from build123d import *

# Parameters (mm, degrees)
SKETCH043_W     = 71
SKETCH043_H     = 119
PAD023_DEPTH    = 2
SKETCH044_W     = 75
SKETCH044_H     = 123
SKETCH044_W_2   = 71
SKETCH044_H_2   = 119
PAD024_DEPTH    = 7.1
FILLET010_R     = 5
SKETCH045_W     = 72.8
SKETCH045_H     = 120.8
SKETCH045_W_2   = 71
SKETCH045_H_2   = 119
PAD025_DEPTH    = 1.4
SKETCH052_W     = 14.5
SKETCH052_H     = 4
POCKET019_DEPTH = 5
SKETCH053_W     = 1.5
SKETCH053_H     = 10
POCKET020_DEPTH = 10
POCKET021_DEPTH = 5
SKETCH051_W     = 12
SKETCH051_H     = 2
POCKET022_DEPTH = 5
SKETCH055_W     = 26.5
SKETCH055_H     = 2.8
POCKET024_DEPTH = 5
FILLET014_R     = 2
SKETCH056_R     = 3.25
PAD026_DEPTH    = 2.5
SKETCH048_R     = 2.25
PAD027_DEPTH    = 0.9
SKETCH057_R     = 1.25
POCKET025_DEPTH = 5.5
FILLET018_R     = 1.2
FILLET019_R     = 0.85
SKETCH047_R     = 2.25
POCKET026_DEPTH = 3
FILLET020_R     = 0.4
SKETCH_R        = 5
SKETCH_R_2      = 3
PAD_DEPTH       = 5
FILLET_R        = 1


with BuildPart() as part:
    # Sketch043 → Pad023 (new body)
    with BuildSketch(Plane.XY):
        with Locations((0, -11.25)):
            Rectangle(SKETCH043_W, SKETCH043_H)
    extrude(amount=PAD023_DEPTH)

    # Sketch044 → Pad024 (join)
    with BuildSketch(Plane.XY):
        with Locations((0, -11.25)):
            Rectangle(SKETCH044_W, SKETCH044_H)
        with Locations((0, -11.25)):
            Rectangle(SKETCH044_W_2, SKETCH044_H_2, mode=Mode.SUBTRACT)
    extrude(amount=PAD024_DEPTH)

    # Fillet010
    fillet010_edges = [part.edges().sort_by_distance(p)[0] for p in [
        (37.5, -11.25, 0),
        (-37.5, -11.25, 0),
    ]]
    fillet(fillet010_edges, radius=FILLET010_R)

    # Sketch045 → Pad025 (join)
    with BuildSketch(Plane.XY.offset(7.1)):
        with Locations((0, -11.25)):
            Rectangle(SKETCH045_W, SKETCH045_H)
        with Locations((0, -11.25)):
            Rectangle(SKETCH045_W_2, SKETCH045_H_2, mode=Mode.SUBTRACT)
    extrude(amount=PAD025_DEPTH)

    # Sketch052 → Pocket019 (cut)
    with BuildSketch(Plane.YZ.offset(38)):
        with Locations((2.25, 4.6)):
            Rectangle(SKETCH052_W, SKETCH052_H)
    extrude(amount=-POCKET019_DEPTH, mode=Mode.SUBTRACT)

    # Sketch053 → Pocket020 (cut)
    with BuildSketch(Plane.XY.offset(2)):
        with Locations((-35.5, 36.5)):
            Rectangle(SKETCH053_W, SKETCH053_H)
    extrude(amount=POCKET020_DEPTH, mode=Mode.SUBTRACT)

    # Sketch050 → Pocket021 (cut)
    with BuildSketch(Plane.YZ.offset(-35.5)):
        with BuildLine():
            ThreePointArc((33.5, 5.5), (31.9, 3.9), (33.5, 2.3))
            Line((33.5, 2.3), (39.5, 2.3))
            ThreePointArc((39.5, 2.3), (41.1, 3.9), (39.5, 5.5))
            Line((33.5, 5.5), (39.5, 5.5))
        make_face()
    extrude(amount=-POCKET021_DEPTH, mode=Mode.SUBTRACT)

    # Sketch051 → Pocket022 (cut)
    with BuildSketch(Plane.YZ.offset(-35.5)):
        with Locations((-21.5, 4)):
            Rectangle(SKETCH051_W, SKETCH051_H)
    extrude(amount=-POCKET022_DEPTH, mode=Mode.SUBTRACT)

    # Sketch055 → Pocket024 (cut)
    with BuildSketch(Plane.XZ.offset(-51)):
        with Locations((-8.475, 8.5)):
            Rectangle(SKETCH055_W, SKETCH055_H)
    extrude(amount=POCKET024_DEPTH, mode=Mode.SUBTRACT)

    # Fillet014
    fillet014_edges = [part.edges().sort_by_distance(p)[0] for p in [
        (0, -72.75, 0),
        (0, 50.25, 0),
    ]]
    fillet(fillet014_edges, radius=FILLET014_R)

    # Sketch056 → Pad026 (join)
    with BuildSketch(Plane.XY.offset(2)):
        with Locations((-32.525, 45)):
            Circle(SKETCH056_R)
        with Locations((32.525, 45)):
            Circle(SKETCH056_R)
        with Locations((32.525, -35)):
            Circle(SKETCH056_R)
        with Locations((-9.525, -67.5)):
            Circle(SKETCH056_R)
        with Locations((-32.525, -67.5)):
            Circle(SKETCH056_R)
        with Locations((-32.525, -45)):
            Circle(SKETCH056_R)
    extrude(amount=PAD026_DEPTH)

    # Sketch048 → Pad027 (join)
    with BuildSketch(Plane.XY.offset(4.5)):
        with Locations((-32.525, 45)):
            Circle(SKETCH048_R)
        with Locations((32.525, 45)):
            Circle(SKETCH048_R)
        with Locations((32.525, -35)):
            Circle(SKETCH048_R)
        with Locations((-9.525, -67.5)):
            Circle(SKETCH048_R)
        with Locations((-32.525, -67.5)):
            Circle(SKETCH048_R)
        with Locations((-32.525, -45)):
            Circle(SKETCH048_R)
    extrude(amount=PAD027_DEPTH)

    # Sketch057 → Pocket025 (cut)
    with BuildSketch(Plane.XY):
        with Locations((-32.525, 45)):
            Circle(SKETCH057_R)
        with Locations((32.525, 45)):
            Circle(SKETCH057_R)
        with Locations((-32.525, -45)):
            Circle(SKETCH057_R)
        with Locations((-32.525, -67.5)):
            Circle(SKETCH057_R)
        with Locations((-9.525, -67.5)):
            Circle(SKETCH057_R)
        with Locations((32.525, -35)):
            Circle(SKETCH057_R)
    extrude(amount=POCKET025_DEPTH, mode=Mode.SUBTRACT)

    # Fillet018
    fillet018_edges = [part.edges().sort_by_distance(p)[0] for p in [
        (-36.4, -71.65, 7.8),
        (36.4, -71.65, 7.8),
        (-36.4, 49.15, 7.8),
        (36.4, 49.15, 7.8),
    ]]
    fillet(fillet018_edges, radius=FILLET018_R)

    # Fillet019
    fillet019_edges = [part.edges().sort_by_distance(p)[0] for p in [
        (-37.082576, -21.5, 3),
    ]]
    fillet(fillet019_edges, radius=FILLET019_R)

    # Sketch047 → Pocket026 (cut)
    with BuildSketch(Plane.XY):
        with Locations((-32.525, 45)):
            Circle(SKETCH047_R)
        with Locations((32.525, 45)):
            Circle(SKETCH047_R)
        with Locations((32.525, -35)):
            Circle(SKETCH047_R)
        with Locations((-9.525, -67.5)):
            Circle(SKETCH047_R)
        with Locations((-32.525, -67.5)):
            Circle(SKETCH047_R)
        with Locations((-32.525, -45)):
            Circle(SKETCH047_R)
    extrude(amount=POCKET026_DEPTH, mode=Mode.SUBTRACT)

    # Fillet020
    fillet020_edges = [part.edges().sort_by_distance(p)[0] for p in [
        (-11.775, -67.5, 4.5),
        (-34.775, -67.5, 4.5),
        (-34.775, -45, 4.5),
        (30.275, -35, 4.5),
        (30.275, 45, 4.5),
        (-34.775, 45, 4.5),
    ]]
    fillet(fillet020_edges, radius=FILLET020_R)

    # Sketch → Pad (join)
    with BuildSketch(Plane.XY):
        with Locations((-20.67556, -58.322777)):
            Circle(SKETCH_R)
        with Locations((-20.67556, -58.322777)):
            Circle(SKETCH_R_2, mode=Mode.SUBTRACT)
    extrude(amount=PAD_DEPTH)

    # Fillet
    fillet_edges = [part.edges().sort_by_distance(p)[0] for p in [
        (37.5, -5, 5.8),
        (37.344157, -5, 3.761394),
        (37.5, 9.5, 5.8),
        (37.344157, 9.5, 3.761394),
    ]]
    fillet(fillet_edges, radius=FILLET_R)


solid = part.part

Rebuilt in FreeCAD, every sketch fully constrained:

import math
import FreeCAD as App
import Part
import Sketcher
from FreeCAD import Vector


def edges_at(feature, points):
    """Names of the edges that pass closest to the given points."""
    edges = feature.Shape.Edges
    near = lambda p: min(range(len(edges)), key=lambda i: edges[i].distToShape(Part.Vertex(*p))[0])
    return sorted({f"Edge{near(p) + 1}" for p in points})

doc = App.newDocument("Part")
body = doc.addObject("PartDesign::Body", "Body")

sketch1 = doc.addObject("Sketcher::SketchObject", "Sketch")
body.addObject(sketch1)
sketch1.AttachmentSupport = (doc.XY_Plane, [""])
sketch1.MapMode = "FlatFace"
sketch1.addGeometry(Part.LineSegment(Vector(-36, 48, 0), Vector(-36, -71, 0)), False)
sketch1.addGeometry(Part.LineSegment(Vector(-36, -71, 0), Vector(36, -71, 0)), False)
sketch1.addGeometry(Part.LineSegment(Vector(36, -71, 0), Vector(36, 48, 0)), False)
sketch1.addGeometry(Part.LineSegment(Vector(36, 48, 0), Vector(-36, 48, 0)), False)
sketch1.addConstraint(Sketcher.Constraint("Coincident", 0, 2, 1, 1))
sketch1.addConstraint(Sketcher.Constraint("Coincident", 1, 2, 2, 1))
sketch1.addConstraint(Sketcher.Constraint("Coincident", 2, 2, 3, 1))
sketch1.addConstraint(Sketcher.Constraint("Coincident", 3, 2, 0, 1))
sketch1.addConstraint(Sketcher.Constraint("Vertical", 0))
sketch1.addConstraint(Sketcher.Constraint("Horizontal", 1))
sketch1.addConstraint(Sketcher.Constraint("Vertical", 2))
sketch1.addConstraint(Sketcher.Constraint("Horizontal", 3))
sketch1.addConstraint(Sketcher.Constraint("DistanceX", 1, 1, 1, 2, 71.0))
sketch1.addConstraint(Sketcher.Constraint("DistanceY", 0, 2, 0, 1, 119.0))
sketch1.addConstraint(Sketcher.Constraint("DistanceX", 0, 2, -1, 1, 35.5))
sketch1.addConstraint(Sketcher.Constraint("DistanceY", 0, 2, -1, 1, 70.75))
pad1 = doc.addObject("PartDesign::Pad", "Pad")
body.addObject(pad1)
pad1.Profile = sketch1
pad1.Length = 2

sketch2 = doc.addObject("Sketcher::SketchObject", "Sketch001")
body.addObject(sketch2)
sketch2.AttachmentSupport = (doc.XY_Plane, [""])
sketch2.MapMode = "FlatFace"
sketch2.addGeometry(Part.LineSegment(Vector(-38, 50, 0), Vector(-38, -73, 0)), False)
sketch2.addGeometry(Part.LineSegment(Vector(-38, -73, 0), Vector(38, -73, 0)), False)
sketch2.addGeometry(Part.LineSegment(Vector(38, -73, 0), Vector(38, 50, 0)), False)
sketch2.addGeometry(Part.LineSegment(Vector(38, 50, 0), Vector(-38, 50, 0)), False)
sketch2.addGeometry(Part.LineSegment(Vector(36, -71, 0), Vector(-36, -71, 0)), False)
sketch2.addGeometry(Part.LineSegment(Vector(-36, -71, 0), Vector(-36, 48, 0)), False)
sketch2.addGeometry(Part.LineSegment(Vector(-36, 48, 0), Vector(36, 48, 0)), False)
sketch2.addGeometry(Part.LineSegment(Vector(36, 48, 0), Vector(36, -71, 0)), False)
sketch2.addConstraint(Sketcher.Constraint("Coincident", 0, 2, 1, 1))
sketch2.addConstraint(Sketcher.Constraint("Coincident", 1, 2, 2, 1))
sketch2.addConstraint(Sketcher.Constraint("Coincident", 2, 2, 3, 1))
sketch2.addConstraint(Sketcher.Constraint("Coincident", 3, 2, 0, 1))
sketch2.addConstraint(Sketcher.Constraint("Coincident", 4, 2, 5, 1))
sketch2.addConstraint(Sketcher.Constraint("Coincident", 5, 2, 6, 1))
sketch2.addConstraint(Sketcher.Constraint("Coincident", 6, 2, 7, 1))
sketch2.addConstraint(Sketcher.Constraint("Coincident", 7, 2, 4, 1))
sketch2.addConstraint(Sketcher.Constraint("Vertical", 0))
sketch2.addConstraint(Sketcher.Constraint("Horizontal", 1))
sketch2.addConstraint(Sketcher.Constraint("Vertical", 2))
sketch2.addConstraint(Sketcher.Constraint("Horizontal", 3))
sketch2.addConstraint(Sketcher.Constraint("Horizontal", 4))
sketch2.addConstraint(Sketcher.Constraint("Vertical", 5))
sketch2.addConstraint(Sketcher.Constraint("Horizontal", 6))
sketch2.addConstraint(Sketcher.Constraint("Vertical", 7))
sketch2.addConstraint(Sketcher.Constraint("DistanceX", 1, 1, 1, 2, 75.0))
sketch2.addConstraint(Sketcher.Constraint("DistanceX", 4, 2, 4, 1, 71.0))
sketch2.addConstraint(Sketcher.Constraint("DistanceY", 0, 2, 0, 1, 123.0))
sketch2.addConstraint(Sketcher.Constraint("DistanceY", 5, 1, 5, 2, 119.0))
sketch2.addConstraint(Sketcher.Constraint("DistanceX", 0, 2, 4, 2, 2.0))
sketch2.addConstraint(Sketcher.Constraint("DistanceY", 0, 2, 4, 2, 2.0))
sketch2.addConstraint(Sketcher.Constraint("DistanceX", 0, 2, -1, 1, 37.5))
sketch2.addConstraint(Sketcher.Constraint("DistanceY", 0, 2, -1, 1, 72.75))
pad2 = doc.addObject("PartDesign::Pad", "Pad001")
body.addObject(pad2)
pad2.Profile = sketch2
pad2.Length = 7.1
doc.recompute()

fillet = doc.addObject("PartDesign::Fillet", "Fillet")
body.addObject(fillet)
fillet.Base = (pad2, edges_at(pad2, [(37.5, -11.25, 0), (-37.5, -11.25, 0)]))
fillet.Radius = 5

sketch3 = doc.addObject("Sketcher::SketchObject", "Sketch002")
body.addObject(sketch3)
sketch3.AttachmentSupport = (doc.XY_Plane, [""])
sketch3.MapMode = "FlatFace"
sketch3.AttachmentOffset = App.Placement(Vector(0, 0, 7.1), App.Rotation())
sketch3.addGeometry(Part.LineSegment(Vector(-36, 49, 0), Vector(-36, -72, 0)), False)
sketch3.addGeometry(Part.LineSegment(Vector(-36, -72, 0), Vector(36, -72, 0)), False)
sketch3.addGeometry(Part.LineSegment(Vector(36, -72, 0), Vector(36, 49, 0)), False)
sketch3.addGeometry(Part.LineSegment(Vector(36, 49, 0), Vector(-36, 49, 0)), False)
sketch3.addGeometry(Part.LineSegment(Vector(36, -71, 0), Vector(-36, -71, 0)), False)
sketch3.addGeometry(Part.LineSegment(Vector(-36, -71, 0), Vector(-36, 48, 0)), False)
sketch3.addGeometry(Part.LineSegment(Vector(-36, 48, 0), Vector(36, 48, 0)), False)
sketch3.addGeometry(Part.LineSegment(Vector(36, 48, 0), Vector(36, -71, 0)), False)
sketch3.addConstraint(Sketcher.Constraint("Coincident", 0, 2, 1, 1))
sketch3.addConstraint(Sketcher.Constraint("Coincident", 1, 2, 2, 1))
sketch3.addConstraint(Sketcher.Constraint("Coincident", 2, 2, 3, 1))
sketch3.addConstraint(Sketcher.Constraint("Coincident", 3, 2, 0, 1))
sketch3.addConstraint(Sketcher.Constraint("Coincident", 4, 2, 5, 1))
sketch3.addConstraint(Sketcher.Constraint("Coincident", 5, 2, 6, 1))
sketch3.addConstraint(Sketcher.Constraint("Coincident", 6, 2, 7, 1))
sketch3.addConstraint(Sketcher.Constraint("Coincident", 7, 2, 4, 1))
sketch3.addConstraint(Sketcher.Constraint("Vertical", 0))
sketch3.addConstraint(Sketcher.Constraint("Horizontal", 1))
sketch3.addConstraint(Sketcher.Constraint("Vertical", 2))
sketch3.addConstraint(Sketcher.Constraint("Horizontal", 3))
sketch3.addConstraint(Sketcher.Constraint("Horizontal", 4))
sketch3.addConstraint(Sketcher.Constraint("Vertical", 5))
sketch3.addConstraint(Sketcher.Constraint("Horizontal", 6))
sketch3.addConstraint(Sketcher.Constraint("Vertical", 7))
sketch3.addConstraint(Sketcher.Constraint("DistanceX", 4, 2, 4, 1, 71.0))
sketch3.addConstraint(Sketcher.Constraint("DistanceY", 5, 1, 5, 2, 119.0))
sketch3.addConstraint(Sketcher.Constraint("DistanceX", 1, 1, 1, 2, 72.8))
sketch3.addConstraint(Sketcher.Constraint("DistanceY", 0, 2, 0, 1, 120.8))
sketch3.addConstraint(Sketcher.Constraint("DistanceX", 0, 2, -1, 1, 36.4))
sketch3.addConstraint(Sketcher.Constraint("DistanceX", 4, 2, -1, 1, 35.5))
sketch3.addConstraint(Sketcher.Constraint("DistanceY", 0, 2, 4, 2, 0.9))
sketch3.addConstraint(Sketcher.Constraint("DistanceY", 0, 2, -1, 1, 71.65))
pad3 = doc.addObject("PartDesign::Pad", "Pad002")
body.addObject(pad3)
pad3.Profile = sketch3
pad3.Length = 1.4

sketch4 = doc.addObject("Sketcher::SketchObject", "Sketch003")
body.addObject(sketch4)
sketch4.AttachmentSupport = (doc.YZ_Plane, [""])
sketch4.MapMode = "FlatFace"
sketch4.AttachmentOffset = App.Placement(Vector(0, 0, 38), App.Rotation())
sketch4.addGeometry(Part.LineSegment(Vector(-5, 6.6, 0), Vector(-5, 2.6, 0)), False)
sketch4.addGeometry(Part.LineSegment(Vector(-5, 2.6, 0), Vector(9.5, 2.6, 0)), False)
sketch4.addGeometry(Part.LineSegment(Vector(9.5, 2.6, 0), Vector(9.5, 6.6, 0)), False)
sketch4.addGeometry(Part.LineSegment(Vector(9.5, 6.6, 0), Vector(-5, 6.6, 0)), False)
sketch4.addConstraint(Sketcher.Constraint("Coincident", 0, 2, 1, 1))
sketch4.addConstraint(Sketcher.Constraint("Coincident", 1, 2, 2, 1))
sketch4.addConstraint(Sketcher.Constraint("Coincident", 2, 2, 3, 1))
sketch4.addConstraint(Sketcher.Constraint("Coincident", 3, 2, 0, 1))
sketch4.addConstraint(Sketcher.Constraint("Vertical", 0))
sketch4.addConstraint(Sketcher.Constraint("Horizontal", 1))
sketch4.addConstraint(Sketcher.Constraint("Vertical", 2))
sketch4.addConstraint(Sketcher.Constraint("Horizontal", 3))
sketch4.addConstraint(Sketcher.Constraint("DistanceY", 0, 2, 0, 1, 4.0))
sketch4.addConstraint(Sketcher.Constraint("DistanceX", 1, 1, 1, 2, 14.5))
sketch4.addConstraint(Sketcher.Constraint("DistanceX", 0, 2, -1, 1, 5.0))
sketch4.addConstraint(Sketcher.Constraint("DistanceY", -1, 1, 0, 2, 2.6))
pocket1 = doc.addObject("PartDesign::Pocket", "Pocket")
body.addObject(pocket1)
pocket1.Profile = sketch4
pocket1.Length = 5

sketch5 = doc.addObject("Sketcher::SketchObject", "Sketch004")
body.addObject(sketch5)
sketch5.AttachmentSupport = (doc.XY_Plane, [""])
sketch5.MapMode = "FlatFace"
sketch5.AttachmentOffset = App.Placement(Vector(0, 0, 2), App.Rotation())
sketch5.addGeometry(Part.LineSegment(Vector(-36.2, 41.5, 0), Vector(-36.2, 31.5, 0)), False)
sketch5.addGeometry(Part.LineSegment(Vector(-36.2, 31.5, 0), Vector(-34.8, 31.5, 0)), False)
sketch5.addGeometry(Part.LineSegment(Vector(-34.8, 31.5, 0), Vector(-34.8, 41.5, 0)), False)
sketch5.addGeometry(Part.LineSegment(Vector(-34.8, 41.5, 0), Vector(-36.2, 41.5, 0)), False)
sketch5.addConstraint(Sketcher.Constraint("Coincident", 0, 2, 1, 1))
sketch5.addConstraint(Sketcher.Constraint("Coincident", 1, 2, 2, 1))
sketch5.addConstraint(Sketcher.Constraint("Coincident", 2, 2, 3, 1))
sketch5.addConstraint(Sketcher.Constraint("Coincident", 3, 2, 0, 1))
sketch5.addConstraint(Sketcher.Constraint("Vertical", 0))
sketch5.addConstraint(Sketcher.Constraint("Horizontal", 1))
sketch5.addConstraint(Sketcher.Constraint("Vertical", 2))
sketch5.addConstraint(Sketcher.Constraint("Horizontal", 3))
sketch5.addConstraint(Sketcher.Constraint("DistanceY", 0, 2, 0, 1, 10.0))
sketch5.addConstraint(Sketcher.Constraint("DistanceX", 1, 1, 1, 2, 1.5))
sketch5.addConstraint(Sketcher.Constraint("DistanceY", -1, 1, 0, 2, 31.5))
sketch5.addConstraint(Sketcher.Constraint("DistanceX", 0, 2, -1, 1, 36.25))
pocket2 = doc.addObject("PartDesign::Pocket", "Pocket001")
body.addObject(pocket2)
pocket2.Profile = sketch5
pocket2.Length = 10
pocket2.Reversed = True

sketch6 = doc.addObject("Sketcher::SketchObject", "Sketch005")
body.addObject(sketch6)
sketch6.AttachmentSupport = (doc.YZ_Plane, [""])
sketch6.MapMode = "FlatFace"
sketch6.AttachmentOffset = App.Placement(Vector(0, 0, -35.5), App.Rotation())
sketch6.addGeometry(Part.ArcOfCircle(Part.Circle(Vector(33.5, 3.9, 0), Vector(0, 0, 1), 1.6), math.radians(90), math.radians(270)), False)
sketch6.addGeometry(Part.LineSegment(Vector(33.5, 2.3, 0), Vector(39.5, 2.3, 0)), False)
sketch6.addGeometry(Part.ArcOfCircle(Part.Circle(Vector(39.5, 3.9, 0), Vector(0, 0, 1), 1.6), math.radians(-90), math.radians(90)), False)
sketch6.addGeometry(Part.LineSegment(Vector(39.5, 5.5, 0), Vector(33.5, 5.5, 0)), False)
sketch6.addConstraint(Sketcher.Constraint("Tangent", 0, 2, 1, 1))
sketch6.addConstraint(Sketcher.Constraint("Tangent", 1, 2, 2, 1))
sketch6.addConstraint(Sketcher.Constraint("Tangent", 2, 2, 3, 1))
sketch6.addConstraint(Sketcher.Constraint("Tangent", 3, 2, 0, 1))
sketch6.addConstraint(Sketcher.Constraint("Horizontal", 1))
sketch6.addConstraint(Sketcher.Constraint("Horizontal", 3))
sketch6.addConstraint(Sketcher.Constraint("Radius", 0, 1.6))
sketch6.addConstraint(Sketcher.Constraint("DistanceX", 1, 1, 1, 2, 6.0))
sketch6.addConstraint(Sketcher.Constraint("DistanceX", -1, 1, 0, 3, 33.5))
sketch6.addConstraint(Sketcher.Constraint("DistanceY", -1, 1, 0, 3, 3.9))
pocket3 = doc.addObject("PartDesign::Pocket", "Pocket002")
body.addObject(pocket3)
pocket3.Profile = sketch6
pocket3.Length = 5

sketch7 = doc.addObject("Sketcher::SketchObject", "Sketch006")
body.addObject(sketch7)
sketch7.AttachmentSupport = (doc.YZ_Plane, [""])
sketch7.MapMode = "FlatFace"
sketch7.AttachmentOffset = App.Placement(Vector(0, 0, -35.5), App.Rotation())
sketch7.addGeometry(Part.LineSegment(Vector(-27.5, 5, 0), Vector(-27.5, 3, 0)), False)
sketch7.addGeometry(Part.LineSegment(Vector(-27.5, 3, 0), Vector(-15.5, 3, 0)), False)
sketch7.addGeometry(Part.LineSegment(Vector(-15.5, 3, 0), Vector(-15.5, 5, 0)), False)
sketch7.addGeometry(Part.LineSegment(Vector(-15.5, 5, 0), Vector(-27.5, 5, 0)), False)
sketch7.addConstraint(Sketcher.Constraint("Coincident", 0, 2, 1, 1))
sketch7.addConstraint(Sketcher.Constraint("Coincident", 1, 2, 2, 1))
sketch7.addConstraint(Sketcher.Constraint("Coincident", 2, 2, 3, 1))
sketch7.addConstraint(Sketcher.Constraint("Coincident", 3, 2, 0, 1))
sketch7.addConstraint(Sketcher.Constraint("Vertical", 0))
sketch7.addConstraint(Sketcher.Constraint("Horizontal", 1))
sketch7.addConstraint(Sketcher.Constraint("Vertical", 2))
sketch7.addConstraint(Sketcher.Constraint("Horizontal", 3))
sketch7.addConstraint(Sketcher.Constraint("DistanceX", 1, 1, 1, 2, 12.0))
sketch7.addConstraint(Sketcher.Constraint("DistanceY", 0, 2, 0, 1, 2.0))
sketch7.addConstraint(Sketcher.Constraint("DistanceY", -1, 1, 0, 2, 3.0))
sketch7.addConstraint(Sketcher.Constraint("DistanceX", 0, 2, -1, 1, 27.5))
pocket4 = doc.addObject("PartDesign::Pocket", "Pocket003")
body.addObject(pocket4)
pocket4.Profile = sketch7
pocket4.Length = 5

sketch8 = doc.addObject("Sketcher::SketchObject", "Sketch007")
body.addObject(sketch8)
sketch8.AttachmentSupport = (doc.XZ_Plane, [""])
sketch8.MapMode = "FlatFace"
sketch8.AttachmentOffset = App.Placement(Vector(0, 0, -51), App.Rotation())
sketch8.addGeometry(Part.LineSegment(Vector(-21.7, 9.9, 0), Vector(-21.7, 7.1, 0)), False)
sketch8.addGeometry(Part.LineSegment(Vector(-21.7, 7.1, 0), Vector(4.8, 7.1, 0)), False)
sketch8.addGeometry(Part.LineSegment(Vector(4.8, 7.1, 0), Vector(4.8, 9.9, 0)), False)
sketch8.addGeometry(Part.LineSegment(Vector(4.8, 9.9, 0), Vector(-21.7, 9.9, 0)), False)
sketch8.addConstraint(Sketcher.Constraint("Coincident", 0, 2, 1, 1))
sketch8.addConstraint(Sketcher.Constraint("Coincident", 1, 2, 2, 1))
sketch8.addConstraint(Sketcher.Constraint("Coincident", 2, 2, 3, 1))
sketch8.addConstraint(Sketcher.Constraint("Coincident", 3, 2, 0, 1))
sketch8.addConstraint(Sketcher.Constraint("Vertical", 0))
sketch8.addConstraint(Sketcher.Constraint("Horizontal", 1))
sketch8.addConstraint(Sketcher.Constraint("Vertical", 2))
sketch8.addConstraint(Sketcher.Constraint("Horizontal", 3))
sketch8.addConstraint(Sketcher.Constraint("DistanceX", 1, 1, 1, 2, 26.5))
sketch8.addConstraint(Sketcher.Constraint("DistanceY", 0, 2, 0, 1, 2.8))
sketch8.addConstraint(Sketcher.Constraint("DistanceY", -1, 1, 0, 2, 7.1))
sketch8.addConstraint(Sketcher.Constraint("DistanceX", 0, 2, -1, 1, 21.725))
pocket5 = doc.addObject("PartDesign::Pocket", "Pocket004")
body.addObject(pocket5)
pocket5.Profile = sketch8
pocket5.Length = 5
pocket5.Reversed = True
doc.recompute()

fillet2 = doc.addObject("PartDesign::Fillet", "Fillet001")
body.addObject(fillet2)
fillet2.Base = (pocket5, edges_at(pocket5, [(0, -72.75, 0), (0, 50.25, 0)]))
fillet2.Radius = 2

sketch9 = doc.addObject("Sketcher::SketchObject", "Sketch008")
body.addObject(sketch9)
sketch9.AttachmentSupport = (doc.XY_Plane, [""])
sketch9.MapMode = "FlatFace"
sketch9.AttachmentOffset = App.Placement(Vector(0, 0, 2), App.Rotation())
sketch9.addGeometry(Part.Circle(Vector(-32.5, 45, 0), Vector(0, 0, 1), 3.2), False)
sketch9.addGeometry(Part.Circle(Vector(32.5, 45, 0), Vector(0, 0, 1), 3.2), False)
sketch9.addGeometry(Part.Circle(Vector(32.5, -35, 0), Vector(0, 0, 1), 3.2), False)
sketch9.addGeometry(Part.Circle(Vector(-9.5, -67.5, 0), Vector(0, 0, 1), 3.2), False)
sketch9.addGeometry(Part.Circle(Vector(-32.5, -67.5, 0), Vector(0, 0, 1), 3.2), False)
sketch9.addGeometry(Part.Circle(Vector(-32.5, -45, 0), Vector(0, 0, 1), 3.2), False)
sketch9.addConstraint(Sketcher.Constraint("Equal", 0, 1))
sketch9.addConstraint(Sketcher.Constraint("Equal", 1, 2))
sketch9.addConstraint(Sketcher.Constraint("Equal", 2, 3))
sketch9.addConstraint(Sketcher.Constraint("Equal", 3, 4))
sketch9.addConstraint(Sketcher.Constraint("Equal", 4, 5))
sketch9.addConstraint(Sketcher.Constraint("Symmetric", 1, 3, 5, 3, -1, 1))
sketch9.addConstraint(Sketcher.Constraint("Symmetric", 0, 3, 1, 3, -2))
sketch9.addConstraint(Sketcher.Constraint("Horizontal", 3, 3, 4, 3))
sketch9.addConstraint(Sketcher.Constraint("Vertical", 1, 3, 2, 3))
sketch9.addConstraint(Sketcher.Constraint("Vertical", 0, 3, 4, 3))
sketch9.addConstraint(Sketcher.Constraint("Diameter", 0, 6.5))
sketch9.addConstraint(Sketcher.Constraint("DistanceY", -1, 1, 0, 3, 45.0))
sketch9.addConstraint(Sketcher.Constraint("DistanceY", 2, 3, -1, 1, 35.0))
sketch9.addConstraint(Sketcher.Constraint("DistanceX", 0, 3, 3, 3, 23.0))
sketch9.addConstraint(Sketcher.Constraint("DistanceY", 3, 3, -1, 1, 67.5))
sketch9.addConstraint(Sketcher.Constraint("DistanceX", 0, 3, 1, 3, 65.05))
pad4 = doc.addObject("PartDesign::Pad", "Pad003")
body.addObject(pad4)
pad4.Profile = sketch9
pad4.Length = 2.5

sketch10 = doc.addObject("Sketcher::SketchObject", "Sketch009")
body.addObject(sketch10)
sketch10.AttachmentSupport = (doc.XY_Plane, [""])
sketch10.MapMode = "FlatFace"
sketch10.AttachmentOffset = App.Placement(Vector(0, 0, 4.5), App.Rotation())
sketch10.addGeometry(Part.Circle(Vector(-32.5, 45, 0), Vector(0, 0, 1), 2.2), False)
sketch10.addGeometry(Part.Circle(Vector(32.5, 45, 0), Vector(0, 0, 1), 2.2), False)
sketch10.addGeometry(Part.Circle(Vector(32.5, -35, 0), Vector(0, 0, 1), 2.2), False)
sketch10.addGeometry(Part.Circle(Vector(-9.5, -67.5, 0), Vector(0, 0, 1), 2.2), False)
sketch10.addGeometry(Part.Circle(Vector(-32.5, -67.5, 0), Vector(0, 0, 1), 2.2), False)
sketch10.addGeometry(Part.Circle(Vector(-32.5, -45, 0), Vector(0, 0, 1), 2.2), False)
sketch10.addConstraint(Sketcher.Constraint("Equal", 0, 1))
sketch10.addConstraint(Sketcher.Constraint("Equal", 1, 2))
sketch10.addConstraint(Sketcher.Constraint("Equal", 2, 3))
sketch10.addConstraint(Sketcher.Constraint("Equal", 3, 4))
sketch10.addConstraint(Sketcher.Constraint("Equal", 4, 5))
sketch10.addConstraint(Sketcher.Constraint("Symmetric", 1, 3, 5, 3, -1, 1))
sketch10.addConstraint(Sketcher.Constraint("Symmetric", 0, 3, 1, 3, -2))
sketch10.addConstraint(Sketcher.Constraint("Horizontal", 3, 3, 4, 3))
sketch10.addConstraint(Sketcher.Constraint("Vertical", 1, 3, 2, 3))
sketch10.addConstraint(Sketcher.Constraint("Vertical", 0, 3, 4, 3))
sketch10.addConstraint(Sketcher.Constraint("Diameter", 0, 4.5))
sketch10.addConstraint(Sketcher.Constraint("DistanceY", -1, 1, 0, 3, 45.0))
sketch10.addConstraint(Sketcher.Constraint("DistanceY", 2, 3, -1, 1, 35.0))
sketch10.addConstraint(Sketcher.Constraint("DistanceX", 0, 3, 3, 3, 23.0))
sketch10.addConstraint(Sketcher.Constraint("DistanceY", 3, 3, -1, 1, 67.5))
sketch10.addConstraint(Sketcher.Constraint("DistanceX", 0, 3, 1, 3, 65.05))
pad5 = doc.addObject("PartDesign::Pad", "Pad004")
body.addObject(pad5)
pad5.Profile = sketch10
pad5.Length = 0.9

sketch11 = doc.addObject("Sketcher::SketchObject", "Sketch010")
body.addObject(sketch11)
sketch11.AttachmentSupport = (doc.XY_Plane, [""])
sketch11.MapMode = "FlatFace"
sketch11.addGeometry(Part.Circle(Vector(-32.5, 45, 0), Vector(0, 0, 1), 1.2), False)
sketch11.addGeometry(Part.Circle(Vector(32.5, 45, 0), Vector(0, 0, 1), 1.2), False)
sketch11.addGeometry(Part.Circle(Vector(-32.5, -45, 0), Vector(0, 0, 1), 1.2), False)
sketch11.addGeometry(Part.Circle(Vector(-32.5, -67.5, 0), Vector(0, 0, 1), 1.2), False)
sketch11.addGeometry(Part.Circle(Vector(-9.5, -67.5, 0), Vector(0, 0, 1), 1.2), False)
sketch11.addGeometry(Part.Circle(Vector(32.5, -35, 0), Vector(0, 0, 1), 1.2), False)
sketch11.addConstraint(Sketcher.Constraint("Equal", 0, 1))
sketch11.addConstraint(Sketcher.Constraint("Equal", 1, 2))
sketch11.addConstraint(Sketcher.Constraint("Equal", 2, 3))
sketch11.addConstraint(Sketcher.Constraint("Equal", 3, 4))
sketch11.addConstraint(Sketcher.Constraint("Equal", 4, 5))
sketch11.addConstraint(Sketcher.Constraint("Symmetric", 1, 3, 2, 3, -1, 1))
sketch11.addConstraint(Sketcher.Constraint("Symmetric", 0, 3, 1, 3, -2))
sketch11.addConstraint(Sketcher.Constraint("Horizontal", 3, 3, 4, 3))
sketch11.addConstraint(Sketcher.Constraint("Vertical", 2, 3, 3, 3))
sketch11.addConstraint(Sketcher.Constraint("Vertical", 1, 3, 5, 3))
sketch11.addConstraint(Sketcher.Constraint("Diameter", 0, 2.5))
sketch11.addConstraint(Sketcher.Constraint("DistanceY", -1, 1, 0, 3, 45.0))
sketch11.addConstraint(Sketcher.Constraint("DistanceY", 5, 3, -1, 1, 35.0))
sketch11.addConstraint(Sketcher.Constraint("DistanceX", 3, 3, 4, 3, 23.0))
sketch11.addConstraint(Sketcher.Constraint("DistanceY", 3, 3, -1, 1, 67.5))
sketch11.addConstraint(Sketcher.Constraint("DistanceX", 0, 3, 1, 3, 65.05))
pocket6 = doc.addObject("PartDesign::Pocket", "Pocket005")
body.addObject(pocket6)
pocket6.Profile = sketch11
pocket6.Length = 5.5
pocket6.Reversed = True
doc.recompute()

fillet3 = doc.addObject("PartDesign::Fillet", "Fillet002")
body.addObject(fillet3)
fillet3.Base = (pocket6, edges_at(pocket6, [
    (-36.4, -71.65, 7.8),
    (36.4, -71.65, 7.8),
    (-36.4, 49.15, 7.8),
    (36.4, 49.15, 7.8),
]))
fillet3.Radius = 1.2
doc.recompute()

fillet4 = doc.addObject("PartDesign::Fillet", "Fillet003")
body.addObject(fillet4)
fillet4.Base = (fillet3, edges_at(fillet3, [(-37.083, -21.5, 3)]))
fillet4.Radius = 0.85

sketch12 = doc.addObject("Sketcher::SketchObject", "Sketch011")
body.addObject(sketch12)
sketch12.AttachmentSupport = (doc.XY_Plane, [""])
sketch12.MapMode = "FlatFace"
sketch12.addGeometry(Part.Circle(Vector(-32.5, 45, 0), Vector(0, 0, 1), 2.2), False)
sketch12.addGeometry(Part.Circle(Vector(32.5, 45, 0), Vector(0, 0, 1), 2.2), False)
sketch12.addGeometry(Part.Circle(Vector(32.5, -35, 0), Vector(0, 0, 1), 2.2), False)
sketch12.addGeometry(Part.Circle(Vector(-9.5, -67.5, 0), Vector(0, 0, 1), 2.2), False)
sketch12.addGeometry(Part.Circle(Vector(-32.5, -67.5, 0), Vector(0, 0, 1), 2.2), False)
sketch12.addGeometry(Part.Circle(Vector(-32.5, -45, 0), Vector(0, 0, 1), 2.2), False)
sketch12.addConstraint(Sketcher.Constraint("Equal", 0, 1))
sketch12.addConstraint(Sketcher.Constraint("Equal", 1, 2))
sketch12.addConstraint(Sketcher.Constraint("Equal", 2, 3))
sketch12.addConstraint(Sketcher.Constraint("Equal", 3, 4))
sketch12.addConstraint(Sketcher.Constraint("Equal", 4, 5))
sketch12.addConstraint(Sketcher.Constraint("Symmetric", 1, 3, 5, 3, -1, 1))
sketch12.addConstraint(Sketcher.Constraint("Symmetric", 0, 3, 1, 3, -2))
sketch12.addConstraint(Sketcher.Constraint("Horizontal", 3, 3, 4, 3))
sketch12.addConstraint(Sketcher.Constraint("Vertical", 1, 3, 2, 3))
sketch12.addConstraint(Sketcher.Constraint("Vertical", 0, 3, 4, 3))
sketch12.addConstraint(Sketcher.Constraint("Diameter", 0, 4.5))
sketch12.addConstraint(Sketcher.Constraint("DistanceY", -1, 1, 0, 3, 45.0))
sketch12.addConstraint(Sketcher.Constraint("DistanceY", 2, 3, -1, 1, 35.0))
sketch12.addConstraint(Sketcher.Constraint("DistanceX", 0, 3, 3, 3, 23.0))
sketch12.addConstraint(Sketcher.Constraint("DistanceY", 3, 3, -1, 1, 67.5))
sketch12.addConstraint(Sketcher.Constraint("DistanceX", 0, 3, 1, 3, 65.05))
pocket7 = doc.addObject("PartDesign::Pocket", "Pocket006")
body.addObject(pocket7)
pocket7.Profile = sketch12
pocket7.Length = 3
pocket7.Reversed = True
doc.recompute()

fillet5 = doc.addObject("PartDesign::Fillet", "Fillet004")
body.addObject(fillet5)
fillet5.Base = (pocket7, edges_at(pocket7, [
    (-11.775, -67.5, 4.5),
    (-34.775, -67.5, 4.5),
    (-34.775, -45, 4.5),
    (30.275, -35, 4.5),
    (30.275, 45, 4.5),
    (-34.775, 45, 4.5),
]))
fillet5.Radius = 0.4

sketch13 = doc.addObject("Sketcher::SketchObject", "Sketch012")
body.addObject(sketch13)
sketch13.AttachmentSupport = (doc.XY_Plane, [""])
sketch13.MapMode = "FlatFace"
sketch13.addGeometry(Part.Circle(Vector(-20.7, -58.3, 0), Vector(0, 0, 1), 5), False)
sketch13.addGeometry(Part.Circle(Vector(-20.7, -58.3, 0), Vector(0, 0, 1), 3), False)
sketch13.addConstraint(Sketcher.Constraint("Coincident", 1, 3, 0, 3))
sketch13.addConstraint(Sketcher.Constraint("Diameter", 0, 10.0))
sketch13.addConstraint(Sketcher.Constraint("Diameter", 1, 6.0))
sketch13.addConstraint(Sketcher.Constraint("DistanceX", 0, 3, -1, 1, 20.67556))
sketch13.addConstraint(Sketcher.Constraint("DistanceY", 0, 3, -1, 1, 58.322777))
pad6 = doc.addObject("PartDesign::Pad", "Pad005")
body.addObject(pad6)
pad6.Profile = sketch13
pad6.Length = 5
doc.recompute()

fillet6 = doc.addObject("PartDesign::Fillet", "Fillet005")
body.addObject(fillet6)
fillet6.Base = (pad6, edges_at(pad6, [
    (37.5, -5, 5.8),
    (37.344, -5, 3.761),
    (37.5, 9.5, 5.8),
    (37.344, 9.5, 3.761),
]))
fillet6.Radius = 1

doc.recompute()
